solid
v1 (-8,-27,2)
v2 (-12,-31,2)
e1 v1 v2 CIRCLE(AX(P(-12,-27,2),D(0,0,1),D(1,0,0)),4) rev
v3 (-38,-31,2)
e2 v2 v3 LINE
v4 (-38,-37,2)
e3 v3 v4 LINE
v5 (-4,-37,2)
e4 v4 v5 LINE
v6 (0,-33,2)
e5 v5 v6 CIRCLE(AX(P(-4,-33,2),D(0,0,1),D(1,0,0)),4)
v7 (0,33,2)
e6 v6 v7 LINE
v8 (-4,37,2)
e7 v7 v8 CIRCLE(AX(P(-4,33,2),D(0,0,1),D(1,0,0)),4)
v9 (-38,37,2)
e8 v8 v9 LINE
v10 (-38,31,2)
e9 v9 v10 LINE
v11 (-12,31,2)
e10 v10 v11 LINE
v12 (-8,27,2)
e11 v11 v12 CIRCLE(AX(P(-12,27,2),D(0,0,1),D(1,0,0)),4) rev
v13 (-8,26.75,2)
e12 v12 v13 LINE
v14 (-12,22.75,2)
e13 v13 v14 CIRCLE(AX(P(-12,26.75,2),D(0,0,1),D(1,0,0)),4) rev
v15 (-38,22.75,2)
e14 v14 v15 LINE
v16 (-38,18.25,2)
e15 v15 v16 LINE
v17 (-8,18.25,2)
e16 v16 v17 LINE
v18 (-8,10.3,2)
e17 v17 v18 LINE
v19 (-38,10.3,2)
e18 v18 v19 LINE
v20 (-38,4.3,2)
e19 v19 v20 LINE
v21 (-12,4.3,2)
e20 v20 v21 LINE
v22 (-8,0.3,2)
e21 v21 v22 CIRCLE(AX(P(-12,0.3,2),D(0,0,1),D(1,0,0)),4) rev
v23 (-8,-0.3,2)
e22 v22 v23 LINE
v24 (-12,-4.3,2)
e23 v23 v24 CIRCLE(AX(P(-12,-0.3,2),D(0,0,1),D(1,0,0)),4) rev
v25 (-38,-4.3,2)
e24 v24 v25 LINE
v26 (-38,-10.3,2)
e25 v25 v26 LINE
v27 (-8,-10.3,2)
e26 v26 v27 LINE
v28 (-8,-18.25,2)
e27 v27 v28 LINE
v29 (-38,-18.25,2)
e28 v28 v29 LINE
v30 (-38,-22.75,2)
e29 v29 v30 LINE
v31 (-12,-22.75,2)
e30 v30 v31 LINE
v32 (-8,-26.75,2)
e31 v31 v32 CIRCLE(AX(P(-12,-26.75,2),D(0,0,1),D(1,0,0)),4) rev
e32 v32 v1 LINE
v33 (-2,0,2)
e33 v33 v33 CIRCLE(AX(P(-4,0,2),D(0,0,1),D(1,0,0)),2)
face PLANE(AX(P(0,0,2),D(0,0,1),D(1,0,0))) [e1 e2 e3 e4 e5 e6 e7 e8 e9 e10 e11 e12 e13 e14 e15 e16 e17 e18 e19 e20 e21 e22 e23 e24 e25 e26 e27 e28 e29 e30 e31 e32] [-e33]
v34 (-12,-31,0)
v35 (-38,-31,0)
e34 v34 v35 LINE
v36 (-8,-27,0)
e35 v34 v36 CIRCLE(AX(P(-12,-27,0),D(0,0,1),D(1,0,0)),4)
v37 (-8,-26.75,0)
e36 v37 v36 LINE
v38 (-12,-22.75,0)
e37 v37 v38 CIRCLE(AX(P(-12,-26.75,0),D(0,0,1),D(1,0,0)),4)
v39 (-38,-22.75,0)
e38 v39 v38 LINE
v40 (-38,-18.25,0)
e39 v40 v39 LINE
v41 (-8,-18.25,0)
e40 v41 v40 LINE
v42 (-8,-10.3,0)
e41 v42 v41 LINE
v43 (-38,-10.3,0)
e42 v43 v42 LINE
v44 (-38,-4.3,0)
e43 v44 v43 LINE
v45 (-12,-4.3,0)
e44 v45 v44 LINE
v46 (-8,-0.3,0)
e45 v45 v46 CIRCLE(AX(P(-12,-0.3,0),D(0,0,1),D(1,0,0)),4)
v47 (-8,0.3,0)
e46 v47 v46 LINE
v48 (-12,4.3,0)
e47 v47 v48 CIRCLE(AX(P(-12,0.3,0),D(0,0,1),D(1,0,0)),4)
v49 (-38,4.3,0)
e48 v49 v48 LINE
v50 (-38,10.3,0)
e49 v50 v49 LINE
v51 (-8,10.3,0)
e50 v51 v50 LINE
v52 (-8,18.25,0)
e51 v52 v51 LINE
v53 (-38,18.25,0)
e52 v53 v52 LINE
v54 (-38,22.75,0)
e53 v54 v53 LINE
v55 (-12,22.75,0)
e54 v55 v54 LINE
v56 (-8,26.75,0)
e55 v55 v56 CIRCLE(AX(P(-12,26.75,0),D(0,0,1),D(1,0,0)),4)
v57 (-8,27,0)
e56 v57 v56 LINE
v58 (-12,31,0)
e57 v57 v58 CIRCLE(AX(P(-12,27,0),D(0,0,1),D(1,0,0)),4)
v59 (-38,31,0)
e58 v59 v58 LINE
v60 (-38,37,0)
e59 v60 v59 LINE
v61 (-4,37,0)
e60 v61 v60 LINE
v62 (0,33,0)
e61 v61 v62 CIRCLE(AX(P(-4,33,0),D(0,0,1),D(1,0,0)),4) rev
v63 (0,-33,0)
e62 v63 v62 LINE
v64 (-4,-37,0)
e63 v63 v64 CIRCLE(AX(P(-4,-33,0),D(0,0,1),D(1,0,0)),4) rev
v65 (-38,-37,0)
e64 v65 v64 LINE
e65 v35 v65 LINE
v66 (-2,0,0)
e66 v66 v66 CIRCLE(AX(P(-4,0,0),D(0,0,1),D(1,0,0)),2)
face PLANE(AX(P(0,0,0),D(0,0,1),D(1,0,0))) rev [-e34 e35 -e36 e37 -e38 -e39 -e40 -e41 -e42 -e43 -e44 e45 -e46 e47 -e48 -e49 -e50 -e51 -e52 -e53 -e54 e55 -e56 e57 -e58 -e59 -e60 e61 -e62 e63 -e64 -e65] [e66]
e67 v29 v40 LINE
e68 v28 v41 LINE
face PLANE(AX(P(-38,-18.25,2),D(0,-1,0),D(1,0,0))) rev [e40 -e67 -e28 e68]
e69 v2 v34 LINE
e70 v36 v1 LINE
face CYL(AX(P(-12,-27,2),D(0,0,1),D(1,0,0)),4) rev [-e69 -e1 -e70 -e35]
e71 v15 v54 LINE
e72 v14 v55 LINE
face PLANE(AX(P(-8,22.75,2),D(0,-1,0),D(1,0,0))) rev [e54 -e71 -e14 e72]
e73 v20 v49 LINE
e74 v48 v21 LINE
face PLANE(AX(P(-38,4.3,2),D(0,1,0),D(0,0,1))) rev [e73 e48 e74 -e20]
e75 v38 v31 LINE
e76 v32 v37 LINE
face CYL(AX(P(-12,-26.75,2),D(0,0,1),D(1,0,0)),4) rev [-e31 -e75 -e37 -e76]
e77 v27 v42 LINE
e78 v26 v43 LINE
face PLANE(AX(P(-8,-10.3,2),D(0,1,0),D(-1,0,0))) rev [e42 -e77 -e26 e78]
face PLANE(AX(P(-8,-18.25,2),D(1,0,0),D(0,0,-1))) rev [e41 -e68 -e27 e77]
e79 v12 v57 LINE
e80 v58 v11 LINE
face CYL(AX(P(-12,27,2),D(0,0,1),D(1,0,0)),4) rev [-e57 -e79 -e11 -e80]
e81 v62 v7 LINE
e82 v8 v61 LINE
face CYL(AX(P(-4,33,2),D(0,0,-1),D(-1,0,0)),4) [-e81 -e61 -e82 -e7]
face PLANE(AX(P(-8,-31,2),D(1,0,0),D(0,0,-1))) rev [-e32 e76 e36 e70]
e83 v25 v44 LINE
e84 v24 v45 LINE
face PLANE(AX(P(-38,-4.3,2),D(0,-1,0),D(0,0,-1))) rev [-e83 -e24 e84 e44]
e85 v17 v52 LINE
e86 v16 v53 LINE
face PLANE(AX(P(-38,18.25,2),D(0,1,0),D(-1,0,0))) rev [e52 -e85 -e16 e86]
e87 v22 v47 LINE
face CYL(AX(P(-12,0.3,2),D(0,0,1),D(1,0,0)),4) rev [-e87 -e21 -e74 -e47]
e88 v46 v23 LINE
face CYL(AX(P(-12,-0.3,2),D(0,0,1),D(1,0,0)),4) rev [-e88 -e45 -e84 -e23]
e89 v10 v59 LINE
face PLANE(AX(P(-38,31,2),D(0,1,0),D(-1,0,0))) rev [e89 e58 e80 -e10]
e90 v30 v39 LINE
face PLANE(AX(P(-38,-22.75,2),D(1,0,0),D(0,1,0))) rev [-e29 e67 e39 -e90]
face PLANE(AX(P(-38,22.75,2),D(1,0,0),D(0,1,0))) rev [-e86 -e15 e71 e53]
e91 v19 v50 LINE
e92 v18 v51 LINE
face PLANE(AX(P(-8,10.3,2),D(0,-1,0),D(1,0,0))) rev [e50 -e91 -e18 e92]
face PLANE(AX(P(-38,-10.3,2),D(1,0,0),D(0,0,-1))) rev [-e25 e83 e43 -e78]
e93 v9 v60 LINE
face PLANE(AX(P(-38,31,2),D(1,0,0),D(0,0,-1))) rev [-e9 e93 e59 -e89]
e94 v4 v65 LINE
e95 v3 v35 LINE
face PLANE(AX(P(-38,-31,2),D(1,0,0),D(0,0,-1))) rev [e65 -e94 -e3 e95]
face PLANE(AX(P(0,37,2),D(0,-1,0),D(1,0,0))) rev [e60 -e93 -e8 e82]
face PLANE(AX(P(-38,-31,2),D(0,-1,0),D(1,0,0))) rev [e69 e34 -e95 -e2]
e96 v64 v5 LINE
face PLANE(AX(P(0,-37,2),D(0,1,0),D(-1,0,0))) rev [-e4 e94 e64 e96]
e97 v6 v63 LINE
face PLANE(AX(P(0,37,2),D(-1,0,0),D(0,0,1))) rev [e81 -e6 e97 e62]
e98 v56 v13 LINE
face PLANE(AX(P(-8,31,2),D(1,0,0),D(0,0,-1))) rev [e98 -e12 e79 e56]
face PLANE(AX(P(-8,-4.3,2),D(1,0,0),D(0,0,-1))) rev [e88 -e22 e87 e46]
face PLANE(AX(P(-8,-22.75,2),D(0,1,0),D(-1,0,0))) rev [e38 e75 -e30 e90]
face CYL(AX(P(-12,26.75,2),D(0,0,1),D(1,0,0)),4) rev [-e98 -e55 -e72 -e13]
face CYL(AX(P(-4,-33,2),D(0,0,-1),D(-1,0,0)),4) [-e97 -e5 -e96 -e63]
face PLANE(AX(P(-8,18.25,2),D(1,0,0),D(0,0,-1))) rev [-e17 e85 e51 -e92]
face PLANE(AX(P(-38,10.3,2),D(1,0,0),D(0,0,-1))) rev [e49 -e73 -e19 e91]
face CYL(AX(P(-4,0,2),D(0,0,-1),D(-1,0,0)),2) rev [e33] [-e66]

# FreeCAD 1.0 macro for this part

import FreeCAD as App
import Part
import Sketcher
from FreeCAD import Vector
Q = App.Units.Quantity


def edges_at(feature, points):
    """Names of the edges that pass closest to the given points."""
    edges = feature.Shape.Edges
    near = lambda p: min(range(len(edges)), key=lambda i: edges[i].distToShape(Part.Vertex(*p))[0])
    return sorted({f"Edge{near(p) + 1}" for p in points})

doc = App.newDocument("Part")
params = doc.addObject("Spreadsheet::Sheet", "Params")
for row, (alias, value) in enumerate([
    ("sketch1_diameter", "4 mm"),
    ("sketch1_width", "38 mm"),
    ("sketch1_width2", "30 mm"),
    ("sketch1_height", "6 mm"),
    ("sketch1_height2", "74 mm"),
    ("pad1_length", "2 mm"),
    ("fillet_radius", "4 mm"),
], start=1):
    params.set(f"A{row}", alias)
    params.set(f"B{row}", "=" + value)
    params.setAlias(f"B{row}", alias)

body = doc.addObject("PartDesign::Body", "Body")

sketch1 = doc.addObject("Sketcher::SketchObject", "Sketch")
body.addObject(sketch1)
sketch1.AttachmentSupport = (doc.XY_Plane, [""])
sketch1.MapMode = "FlatFace"
sketch1.addGeometry([
    Part.LineSegment(Vector(-38, -31, 0), Vector(-38, -37, 0)),
    Part.LineSegment(Vector(-38, -37, 0), Vector(0, -37, 0)),
    Part.LineSegment(Vector(0, -37, 0), Vector(0, 37, 0)),
    Part.LineSegment(Vector(0, 37, 0), Vector(-38, 37, 0)),
    Part.LineSegment(Vector(-38, 37, 0), Vector(-38, 31, 0)),
    Part.LineSegment(Vector(-38, 31, 0), Vector(-8, 31, 0)),
    Part.LineSegment(Vector(-8, 31, 0), Vector(-8, 22.8, 0)),
    Part.LineSegment(Vector(-8, 22.8, 0), Vector(-38, 22.8, 0)),
    Part.LineSegment(Vector(-38, 22.8, 0), Vector(-38, 18.2, 0)),
    Part.LineSegment(Vector(-38, 18.2, 0), Vector(-8, 18.2, 0)),
    Part.LineSegment(Vector(-8, 18.2, 0), Vector(-8, 10.3, 0)),
    Part.LineSegment(Vector(-8, 10.3, 0), Vector(-38, 10.3, 0)),
    Part.LineSegment(Vector(-38, 10.3, 0), Vector(-38, 4.3, 0)),
    Part.LineSegment(Vector(-38, 4.3, 0), Vector(-8, 4.3, 0)),
    Part.LineSegment(Vector(-8, 4.3, 0), Vector(-8, -4.3, 0)),
    Part.LineSegment(Vector(-8, -4.3, 0), Vector(-38, -4.3, 0)),
    Part.LineSegment(Vector(-38, -4.3, 0), Vector(-38, -10.3, 0)),
    Part.LineSegment(Vector(-38, -10.3, 0), Vector(-8, -10.3, 0)),
    Part.LineSegment(Vector(-8, -10.3, 0), Vector(-8, -18.2, 0)),
    Part.LineSegment(Vector(-8, -18.2, 0), Vector(-38, -18.2, 0)),
    Part.LineSegment(Vector(-38, -18.2, 0), Vector(-38, -22.8, 0)),
    Part.LineSegment(Vector(-38, -22.8, 0), Vector(-8, -22.8, 0)),
    Part.LineSegment(Vector(-8, -22.8, 0), Vector(-8, -31, 0)),
    Part.LineSegment(Vector(-8, -31, 0), Vector(-38, -31, 0)),
    Part.Circle(Vector(-4, 0, 0), Vector(0, 0, 1), 2),
], False)
sketch1.addConstraint([
    Sketcher.Constraint("Coincident", 0, 2, 1, 1),
    Sketcher.Constraint("Coincident", 1, 2, 2, 1),
    Sketcher.Constraint("Coincident", 2, 2, 3, 1),
    Sketcher.Constraint("Coincident", 3, 2, 4, 1),
    Sketcher.Constraint("Coincident", 4, 2, 5, 1),
    Sketcher.Constraint("Coincident", 5, 2, 6, 1),
    Sketcher.Constraint("Coincident", 6, 2, 7, 1),
    Sketcher.Constraint("Coincident", 7, 2, 8, 1),
    Sketcher.Constraint("Coincident", 8, 2, 9, 1),
    Sketcher.Constraint("Coincident", 9, 2, 10, 1),
    Sketcher.Constraint("Coincident", 10, 2, 11, 1),
    Sketcher.Constraint("Coincident", 11, 2, 12, 1),
    Sketcher.Constraint("Coincident", 12, 2, 13, 1),
    Sketcher.Constraint("Coincident", 13, 2, 14, 1),
    Sketcher.Constraint("Coincident", 14, 2, 15, 1),
    Sketcher.Constraint("Coincident", 15, 2, 16, 1),
    Sketcher.Constraint("Coincident", 16, 2, 17, 1),
    Sketcher.Constraint("Coincident", 17, 2, 18, 1),
    Sketcher.Constraint("Coincident", 18, 2, 19, 1),
    Sketcher.Constraint("Coincident", 19, 2, 20, 1),
    Sketcher.Constraint("Coincident", 20, 2, 21, 1),
    Sketcher.Constraint("Coincident", 21, 2, 22, 1),
    Sketcher.Constraint("Coincident", 22, 2, 23, 1),
    Sketcher.Constraint("Coincident", 23, 2, 0, 1),
    Sketcher.Constraint("Vertical", 0),
    Sketcher.Constraint("Horizontal", 1),
    Sketcher.Constraint("Vertical", 2),
    Sketcher.Constraint("Horizontal", 3),
    Sketcher.Constraint("Vertical", 4),
    Sketcher.Constraint("Horizontal", 5),
    Sketcher.Constraint("Vertical", 6),
    Sketcher.Constraint("Horizontal", 7),
    Sketcher.Constraint("Vertical", 8),
    Sketcher.Constraint("Horizontal", 9),
    Sketcher.Constraint("Vertical", 10),
    Sketcher.Constraint("Horizontal", 11),
    Sketcher.Constraint("Vertical", 12),
    Sketcher.Constraint("Horizontal", 13),
    Sketcher.Constraint("Vertical", 14),
    Sketcher.Constraint("Horizontal", 15),
    Sketcher.Constraint("Vertical", 16),
    Sketcher.Constraint("Horizontal", 17),
    Sketcher.Constraint("Vertical", 18),
    Sketcher.Constraint("Horizontal", 19),
    Sketcher.Constraint("Vertical", 20),
    Sketcher.Constraint("Horizontal", 21),
    Sketcher.Constraint("Vertical", 22),
    Sketcher.Constraint("Horizontal", 23),
    Sketcher.Constraint("Symmetric", 1, 2, 2, 2, -1, 1),
    Sketcher.Constraint("Symmetric", 12, 2, 15, 2, -1),
    Sketcher.Constraint("Symmetric", 10, 2, 17, 2, -1),
    Sketcher.Constraint("Symmetric", 8, 2, 19, 2, -1),
    Sketcher.Constraint("Symmetric", 6, 2, 21, 2, -1),
    Sketcher.Constraint("Symmetric", 4, 2, 23, 2, -1),
    Sketcher.Constraint("PointOnObject", 24, 3, -1),
    Sketcher.Constraint("Vertical", 4, 2, 7, 2),
    Sketcher.Constraint("Vertical", 6, 2, 9, 2),
    Sketcher.Constraint("Vertical", 8, 2, 11, 2),
    Sketcher.Constraint("Vertical", 10, 2, 13, 2),
    Sketcher.Constraint("Equal", 4, 12),
    Sketcher.Constraint("Diameter", 24, Q("4 mm")),
    Sketcher.Constraint("DistanceX", 1, 1, 1, 2, Q("38 mm")),
    Sketcher.Constraint("DistanceX", 5, 1, 5, 2, Q("30 mm")),
    Sketcher.Constraint("DistanceY", 0, 2, 0, 1, Q("6 mm")),
    Sketcher.Constraint("DistanceY", 2, 1, 2, 2, Q("74 mm")),
    Sketcher.Constraint("DistanceY", 8, 2, 8, 1, Q("4.5 mm")),
    Sketcher.Constraint("DistanceY", 14, 2, 14, 1, Q("8.6 mm")),
    Sketcher.Constraint("DistanceX", 24, 3, -1, 1, Q("4 mm")),
    Sketcher.Constraint("DistanceY", 6, 2, 6, 1, Q("8.25 mm")),
])
sketch1.setExpression("Constraints[60]", "Params.sketch1_diameter")
sketch1.setExpression("Constraints[61]", "Params.sketch1_width")
sketch1.setExpression("Constraints[62]", "Params.sketch1_width2")
sketch1.setExpression("Constraints[63]", "Params.sketch1_height")
sketch1.setExpression("Constraints[64]", "Params.sketch1_height2")
pad1 = doc.addObject("PartDesign::Pad", "Pad")
body.addObject(pad1)
pad1.Profile = sketch1
pad1.setExpression("Length", "Params.pad1_length")
doc.recompute()

fillet = doc.addObject("PartDesign::Fillet", "Fillet")
body.addObject(fillet)
fillet.Base = (pad1, edges_at(pad1, [
    (-8, -31, 1),
    (-8, -22.75, 1),
    (-8, -4.3, 1),
    (-8, 4.3, 1),
    (-8, 22.75, 1),
    (-8, 31, 1),
    (0, 37, 1),
    (0, -37, 1),
]))
fillet.setExpression("Radius", "Params.fillet_radius")

doc.recompute()
